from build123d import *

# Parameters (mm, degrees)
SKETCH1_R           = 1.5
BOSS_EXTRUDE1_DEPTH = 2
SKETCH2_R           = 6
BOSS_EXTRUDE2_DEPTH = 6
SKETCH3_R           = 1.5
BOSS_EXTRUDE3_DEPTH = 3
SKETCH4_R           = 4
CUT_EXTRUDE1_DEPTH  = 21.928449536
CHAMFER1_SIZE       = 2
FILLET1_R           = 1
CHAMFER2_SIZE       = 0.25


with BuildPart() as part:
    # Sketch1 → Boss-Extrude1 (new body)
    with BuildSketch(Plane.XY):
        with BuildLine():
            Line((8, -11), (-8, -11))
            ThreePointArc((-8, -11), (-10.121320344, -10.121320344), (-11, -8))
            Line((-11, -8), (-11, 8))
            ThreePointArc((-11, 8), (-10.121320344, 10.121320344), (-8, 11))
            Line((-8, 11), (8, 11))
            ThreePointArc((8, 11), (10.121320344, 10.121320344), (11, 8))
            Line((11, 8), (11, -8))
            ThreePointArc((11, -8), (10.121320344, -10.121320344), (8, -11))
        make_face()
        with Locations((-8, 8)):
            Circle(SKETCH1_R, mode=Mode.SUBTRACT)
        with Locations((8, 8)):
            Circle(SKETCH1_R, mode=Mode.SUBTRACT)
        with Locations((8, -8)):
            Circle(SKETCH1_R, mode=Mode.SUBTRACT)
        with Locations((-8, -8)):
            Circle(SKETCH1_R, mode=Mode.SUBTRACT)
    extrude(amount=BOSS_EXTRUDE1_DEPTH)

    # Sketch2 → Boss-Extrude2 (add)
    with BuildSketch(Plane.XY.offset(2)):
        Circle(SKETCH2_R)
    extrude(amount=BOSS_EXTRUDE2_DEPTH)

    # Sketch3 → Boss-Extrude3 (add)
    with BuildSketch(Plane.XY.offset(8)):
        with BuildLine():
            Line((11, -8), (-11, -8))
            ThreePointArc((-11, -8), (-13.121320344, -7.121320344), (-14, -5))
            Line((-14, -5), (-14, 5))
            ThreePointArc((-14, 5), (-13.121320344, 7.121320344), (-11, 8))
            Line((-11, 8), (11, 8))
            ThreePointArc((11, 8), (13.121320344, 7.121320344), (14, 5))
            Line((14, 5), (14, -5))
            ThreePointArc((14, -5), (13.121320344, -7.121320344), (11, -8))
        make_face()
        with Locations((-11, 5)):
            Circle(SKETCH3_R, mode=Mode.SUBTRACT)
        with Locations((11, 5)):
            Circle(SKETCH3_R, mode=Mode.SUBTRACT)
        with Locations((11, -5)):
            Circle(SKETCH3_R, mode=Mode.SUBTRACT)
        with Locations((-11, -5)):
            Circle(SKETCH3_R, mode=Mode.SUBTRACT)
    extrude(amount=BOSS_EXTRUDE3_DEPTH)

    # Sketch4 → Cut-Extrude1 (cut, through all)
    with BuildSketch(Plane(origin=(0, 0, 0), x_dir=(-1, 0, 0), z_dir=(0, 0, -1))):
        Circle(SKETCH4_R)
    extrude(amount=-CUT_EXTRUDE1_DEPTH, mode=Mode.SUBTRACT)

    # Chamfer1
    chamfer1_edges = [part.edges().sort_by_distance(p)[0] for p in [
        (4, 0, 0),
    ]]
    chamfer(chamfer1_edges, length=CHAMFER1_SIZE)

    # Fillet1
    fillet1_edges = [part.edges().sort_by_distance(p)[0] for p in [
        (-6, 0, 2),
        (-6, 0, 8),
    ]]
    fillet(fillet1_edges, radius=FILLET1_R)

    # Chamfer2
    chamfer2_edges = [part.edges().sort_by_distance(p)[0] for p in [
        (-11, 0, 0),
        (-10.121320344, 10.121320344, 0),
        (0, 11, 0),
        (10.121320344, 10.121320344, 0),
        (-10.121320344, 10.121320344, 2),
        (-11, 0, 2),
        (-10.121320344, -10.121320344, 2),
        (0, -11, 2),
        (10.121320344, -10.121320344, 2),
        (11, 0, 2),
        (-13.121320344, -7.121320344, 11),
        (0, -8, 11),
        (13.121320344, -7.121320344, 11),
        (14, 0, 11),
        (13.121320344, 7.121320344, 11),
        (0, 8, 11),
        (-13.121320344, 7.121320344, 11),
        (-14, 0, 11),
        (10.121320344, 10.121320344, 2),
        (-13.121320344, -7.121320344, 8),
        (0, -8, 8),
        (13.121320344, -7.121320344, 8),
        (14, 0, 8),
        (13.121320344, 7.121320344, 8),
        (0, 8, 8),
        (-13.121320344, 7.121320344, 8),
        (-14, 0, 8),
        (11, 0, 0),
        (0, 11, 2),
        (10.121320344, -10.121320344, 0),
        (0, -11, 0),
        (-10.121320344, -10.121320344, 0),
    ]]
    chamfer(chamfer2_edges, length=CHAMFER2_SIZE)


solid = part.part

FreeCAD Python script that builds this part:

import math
import FreeCAD as App
import Part
import Sketcher
from FreeCAD import Vector
Q = App.Units.Quantity


def edges_at(feature, points):
    """Names of the edges that pass closest to the given points."""
    edges = feature.Shape.Edges
    near = lambda p: min(range(len(edges)), key=lambda i: edges[i].distToShape(Part.Vertex(*p))[0])
    return sorted({f"Edge{near(p) + 1}" for p in points})

doc = App.newDocument("Part")
params = doc.addObject("Spreadsheet::Sheet", "Params")
for row, (alias, value) in enumerate([
    ("sketch1_diameter", "3 mm"),
    ("sketch1_radius", "3 mm"),
    ("sketch1_width", "16 mm"),
    ("pad1_length", "2 mm"),
    ("sketch2_diameter", "12 mm"),
    ("pad2_length", "6 mm"),
    ("sketch3_diameter", "3 mm"),
    ("sketch3_radius", "3 mm"),
    ("sketch3_width", "22 mm"),
    ("sketch3_height", "10 mm"),
    ("pad3_length", "3 mm"),
    ("sketch4_diameter", "8 mm"),
    ("chamfer_size", "2 mm"),
    ("fillet_radius", "1 mm"),
    ("chamfer2_size", "0.25 mm"),
], start=1):
    params.set(f"A{row}", alias)
    params.set(f"B{row}", "=" + value)
    params.setAlias(f"B{row}", alias)

body = doc.addObject("PartDesign::Body", "Body")

# Sketch on XY plane
sketch1 = body.newObject("Sketcher::SketchObject", "Sketch")
sketch1.AttachmentSupport = (doc.getObject("XY_Plane"), [""])
sketch1.MapMode = "FlatFace"
sketch1.addGeometry([
    Part.LineSegment(Vector(-8, -11, 0), Vector(8, -11, 0)),  # 0
    Part.ArcOfCircle(Part.Circle(Vector(8, -8, 0), Vector(0, 0, 1), 3), math.radians(-90), math.radians(0)),  # 1
    Part.LineSegment(Vector(11, -8, 0), Vector(11, 8, 0)),  # 2
    Part.ArcOfCircle(Part.Circle(Vector(8, 8, 0), Vector(0, 0, 1), 3), math.radians(0), math.radians(90)),  # 3
    Part.LineSegment(Vector(8, 11, 0), Vector(-8, 11, 0)),  # 4
    Part.ArcOfCircle(Part.Circle(Vector(-8, 8, 0), Vector(0, 0, 1), 3), math.radians(90), math.radians(180)),  # 5
    Part.LineSegment(Vector(-11, 8, 0), Vector(-11, -8, 0)),  # 6
    Part.ArcOfCircle(Part.Circle(Vector(-8, -8, 0), Vector(0, 0, 1), 3), math.radians(180), math.radians(270)),  # 7
    Part.Circle(Vector(8, -8, 0), Vector(0, 0, 1), 1.5),  # 8
    Part.Circle(Vector(-8, -8, 0), Vector(0, 0, 1), 1.5),  # 9
    Part.Circle(Vector(8, 8, 0), Vector(0, 0, 1), 1.5),  # 10
    Part.Circle(Vector(-8, 8, 0), Vector(0, 0, 1), 1.5),  # 11
], False)
sketch1.addConstraint([
    Sketcher.Constraint("Tangent", 0, 2, 1, 1),
    Sketcher.Constraint("Tangent", 1, 2, 2, 1),
    Sketcher.Constraint("Tangent", 2, 2, 3, 1),
    Sketcher.Constraint("Tangent", 3, 2, 4, 1),
    Sketcher.Constraint("Tangent", 4, 2, 5, 1),
    Sketcher.Constraint("Tangent", 5, 2, 6, 1),
    Sketcher.Constraint("Tangent", 6, 2, 7, 1),
    Sketcher.Constraint("Tangent", 7, 2, 0, 1),
    Sketcher.Constraint("Horizontal", 0),
    Sketcher.Constraint("Vertical", 2),
    Sketcher.Constraint("Horizontal", 4),
    Sketcher.Constraint("Vertical", 6),
    Sketcher.Constraint("Coincident", 8, 3, 1, 3),
    Sketcher.Constraint("Coincident", 9, 3, 7, 3),
    Sketcher.Constraint("Coincident", 10, 3, 3, 3),
    Sketcher.Constraint("Coincident", 11, 3, 5, 3),
    Sketcher.Constraint("Equal", 1, 3),
    Sketcher.Constraint("Equal", 3, 5),
    Sketcher.Constraint("Equal", 5, 7),
    Sketcher.Constraint("Equal", 8, 9),
    Sketcher.Constraint("Equal", 9, 10),
    Sketcher.Constraint("Equal", 10, 11),
    Sketcher.Constraint("Symmetric", 1, 3, 5, 3, -1, 1),
    Sketcher.Constraint("Equal", 4, 2),
    Sketcher.Constraint("Diameter", 8, Q("3 mm")),
    Sketcher.Constraint("Radius", 1, Q("3 mm")),
    Sketcher.Constraint("DistanceX", 0, 1, 0, 2, Q("16 mm")),
])
sketch1.setExpression("Constraints[24]", "Params.sketch1_diameter")
sketch1.setExpression("Constraints[25]", "Params.sketch1_radius")
sketch1.setExpression("Constraints[26]", "Params.sketch1_width")
pad1 = body.newObject("PartDesign::Pad", "Pad")
pad1.Profile = sketch1
pad1.setExpression("Length", "Params.pad1_length")

# Sketch on XY plane
sketch2 = body.newObject("Sketcher::SketchObject", "Sketch001")
sketch2.AttachmentSupport = (doc.getObject("XY_Plane"), [""])
sketch2.MapMode = "FlatFace"
sketch2.AttachmentOffset = App.Placement(Vector(0, 0, 2), App.Rotation())
sketch2.addGeometry(Part.Circle(Vector(0, 0, 0), Vector(0, 0, 1), 6), False)
sketch2.addConstraint([
    Sketcher.Constraint("Coincident", 0, 3, -1, 1),
    Sketcher.Constraint("Diameter", 0, Q("12 mm")),
])
sketch2.setExpression("Constraints[1]", "Params.sketch2_diameter")
pad2 = body.newObject("PartDesign::Pad", "Pad001")
pad2.Profile = sketch2
pad2.setExpression("Length", "Params.pad2_length")

# Sketch on XY plane
sketch3 = body.newObject("Sketcher::SketchObject", "Sketch002")
sketch3.AttachmentSupport = (doc.getObject("XY_Plane"), [""])
sketch3.MapMode = "FlatFace"
sketch3.AttachmentOffset = App.Placement(Vector(0, 0, 8), App.Rotation())
sketch3.addGeometry([
    Part.LineSegment(Vector(-11, -8, 0), Vector(11, -8, 0)),  # 0
    Part.ArcOfCircle(Part.Circle(Vector(11, -5, 0), Vector(0, 0, 1), 3), math.radians(-90), math.radians(0)),  # 1
    Part.LineSegment(Vector(14, -5, 0), Vector(14, 5, 0)),  # 2
    Part.ArcOfCircle(Part.Circle(Vector(11, 5, 0), Vector(0, 0, 1), 3), math.radians(0), math.radians(90)),  # 3
    Part.LineSegment(Vector(11, 8, 0), Vector(-11, 8, 0)),  # 4
    Part.ArcOfCircle(Part.Circle(Vector(-11, 5, 0), Vector(0, 0, 1), 3), math.radians(90), math.radians(180)),  # 5
    Part.LineSegment(Vector(-14, 5, 0), Vector(-14, -5, 0)),  # 6
    Part.ArcOfCircle(Part.Circle(Vector(-11, -5, 0), Vector(0, 0, 1), 3), math.radians(180), math.radians(270)),  # 7
    Part.Circle(Vector(11, -5, 0), Vector(0, 0, 1), 1.5),  # 8
    Part.Circle(Vector(-11, -5, 0), Vector(0, 0, 1), 1.5),  # 9
    Part.Circle(Vector(11, 5, 0), Vector(0, 0, 1), 1.5),  # 10
    Part.Circle(Vector(-11, 5, 0), Vector(0, 0, 1), 1.5),  # 11
], False)
sketch3.addConstraint([
    Sketcher.Constraint("Tangent", 0, 2, 1, 1),
    Sketcher.Constraint("Tangent", 1, 2, 2, 1),
    Sketcher.Constraint("Tangent", 2, 2, 3, 1),
    Sketcher.Constraint("Tangent", 3, 2, 4, 1),
    Sketcher.Constraint("Tangent", 4, 2, 5, 1),
    Sketcher.Constraint("Tangent", 5, 2, 6, 1),
    Sketcher.Constraint("Tangent", 6, 2, 7, 1),
    Sketcher.Constraint("Tangent", 7, 2, 0, 1),
    Sketcher.Constraint("Horizontal", 0),
    Sketcher.Constraint("Vertical", 2),
    Sketcher.Constraint("Horizontal", 4),
    Sketcher.Constraint("Vertical", 6),
    Sketcher.Constraint("Coincident", 8, 3, 1, 3),
    Sketcher.Constraint("Coincident", 9, 3, 7, 3),
    Sketcher.Constraint("Coincident", 10, 3, 3, 3),
    Sketcher.Constraint("Coincident", 11, 3, 5, 3),
    Sketcher.Constraint("Equal", 1, 3),
    Sketcher.Constraint("Equal", 3, 5),
    Sketcher.Constraint("Equal", 5, 7),
    Sketcher.Constraint("Equal", 8, 9),
    Sketcher.Constraint("Equal", 9, 10),
    Sketcher.Constraint("Equal", 10, 11),
    Sketcher.Constraint("Symmetric", 1, 3, 5, 3, -1, 1),
    Sketcher.Constraint("Diameter", 8, Q("3 mm")),
    Sketcher.Constraint("Radius", 1, Q("3 mm")),
    Sketcher.Constraint("DistanceX", 0, 1, 0, 2, Q("22 mm")),
    Sketcher.Constraint("DistanceY", 2, 1, 2, 2, Q("10 mm")),
])
sketch3.setExpression("Constraints[23]", "Params.sketch3_diameter")
sketch3.setExpression("Constraints[24]", "Params.sketch3_radius")
sketch3.setExpression("Constraints[25]", "Params.sketch3_width")
sketch3.setExpression("Constraints[26]", "Params.sketch3_height")
pad3 = body.newObject("PartDesign::Pad", "Pad002")
pad3.Profile = sketch3
pad3.setExpression("Length", "Params.pad3_length")

# Sketch on XY plane
sketch4 = body.newObject("Sketcher::SketchObject", "Sketch003")
sketch4.AttachmentSupport = (doc.getObject("XY_Plane"), [""])
sketch4.MapMode = "FlatFace"
sketch4.addGeometry(Part.Circle(Vector(0, 0, 0), Vector(0, 0, 1), 4), False)
sketch4.addConstraint([
    Sketcher.Constraint("Coincident", 0, 3, -1, 1),
    Sketcher.Constraint("Diameter", 0, Q("8 mm")),
])
sketch4.setExpression("Constraints[1]", "Params.sketch4_diameter")
pocket1 = body.newObject("PartDesign::Pocket", "Pocket")
pocket1.Profile = sketch4
pocket1.Type = "ThroughAll"
pocket1.Reversed = True
doc.recompute()

chamfer = body.newObject("PartDesign::Chamfer", "Chamfer")
chamfer.Base = (pocket1, edges_at(pocket1, [(4, 0, 0)]))
chamfer.setExpression("Size", "Params.chamfer_size")
doc.recompute()

fillet = body.newObject("PartDesign::Fillet", "Fillet")
fillet.Base = (chamfer, edges_at(chamfer, [(-6, 0, 2), (-6, 0, 8)]))
fillet.setExpression("Radius", "Params.fillet_radius")
doc.recompute()

chamfer2 = body.newObject("PartDesign::Chamfer", "Chamfer001")
chamfer2.Base = (fillet, edges_at(fillet, [
    (-11, 0, 0),
    (-10.121, 10.121, 0),
    (0, 11, 0),
    (10.121, 10.121, 0),
    (-10.121, 10.121, 2),
    (-11, 0, 2),
    (-10.121, -10.121, 2),
    (0, -11, 2),
    (10.121, -10.121, 2),
    (11, 0, 2),
    (-13.121, -7.121, 11),
    (0, -8, 11),
    (13.121, -7.121, 11),
    (14, 0, 11),
    (13.121, 7.121, 11),
    (0, 8, 11),
    (-13.121, 7.121, 11),
    (-14, 0, 11),
    (10.121, 10.121, 2),
    (-13.121, -7.121, 8),
    (0, -8, 8),
    (13.121, -7.121, 8),
    (14, 0, 8),
    (13.121, 7.121, 8),
    (0, 8, 8),
    (-13.121, 7.121, 8),
    (-14, 0, 8),
    (11, 0, 0),
    (0, 11, 2),
    (10.121, -10.121, 0),
    (0, -11, 0),
    (-10.121, -10.121, 0),
]))
chamfer2.setExpression("Size", "Params.chamfer2_size")

doc.recompute()
